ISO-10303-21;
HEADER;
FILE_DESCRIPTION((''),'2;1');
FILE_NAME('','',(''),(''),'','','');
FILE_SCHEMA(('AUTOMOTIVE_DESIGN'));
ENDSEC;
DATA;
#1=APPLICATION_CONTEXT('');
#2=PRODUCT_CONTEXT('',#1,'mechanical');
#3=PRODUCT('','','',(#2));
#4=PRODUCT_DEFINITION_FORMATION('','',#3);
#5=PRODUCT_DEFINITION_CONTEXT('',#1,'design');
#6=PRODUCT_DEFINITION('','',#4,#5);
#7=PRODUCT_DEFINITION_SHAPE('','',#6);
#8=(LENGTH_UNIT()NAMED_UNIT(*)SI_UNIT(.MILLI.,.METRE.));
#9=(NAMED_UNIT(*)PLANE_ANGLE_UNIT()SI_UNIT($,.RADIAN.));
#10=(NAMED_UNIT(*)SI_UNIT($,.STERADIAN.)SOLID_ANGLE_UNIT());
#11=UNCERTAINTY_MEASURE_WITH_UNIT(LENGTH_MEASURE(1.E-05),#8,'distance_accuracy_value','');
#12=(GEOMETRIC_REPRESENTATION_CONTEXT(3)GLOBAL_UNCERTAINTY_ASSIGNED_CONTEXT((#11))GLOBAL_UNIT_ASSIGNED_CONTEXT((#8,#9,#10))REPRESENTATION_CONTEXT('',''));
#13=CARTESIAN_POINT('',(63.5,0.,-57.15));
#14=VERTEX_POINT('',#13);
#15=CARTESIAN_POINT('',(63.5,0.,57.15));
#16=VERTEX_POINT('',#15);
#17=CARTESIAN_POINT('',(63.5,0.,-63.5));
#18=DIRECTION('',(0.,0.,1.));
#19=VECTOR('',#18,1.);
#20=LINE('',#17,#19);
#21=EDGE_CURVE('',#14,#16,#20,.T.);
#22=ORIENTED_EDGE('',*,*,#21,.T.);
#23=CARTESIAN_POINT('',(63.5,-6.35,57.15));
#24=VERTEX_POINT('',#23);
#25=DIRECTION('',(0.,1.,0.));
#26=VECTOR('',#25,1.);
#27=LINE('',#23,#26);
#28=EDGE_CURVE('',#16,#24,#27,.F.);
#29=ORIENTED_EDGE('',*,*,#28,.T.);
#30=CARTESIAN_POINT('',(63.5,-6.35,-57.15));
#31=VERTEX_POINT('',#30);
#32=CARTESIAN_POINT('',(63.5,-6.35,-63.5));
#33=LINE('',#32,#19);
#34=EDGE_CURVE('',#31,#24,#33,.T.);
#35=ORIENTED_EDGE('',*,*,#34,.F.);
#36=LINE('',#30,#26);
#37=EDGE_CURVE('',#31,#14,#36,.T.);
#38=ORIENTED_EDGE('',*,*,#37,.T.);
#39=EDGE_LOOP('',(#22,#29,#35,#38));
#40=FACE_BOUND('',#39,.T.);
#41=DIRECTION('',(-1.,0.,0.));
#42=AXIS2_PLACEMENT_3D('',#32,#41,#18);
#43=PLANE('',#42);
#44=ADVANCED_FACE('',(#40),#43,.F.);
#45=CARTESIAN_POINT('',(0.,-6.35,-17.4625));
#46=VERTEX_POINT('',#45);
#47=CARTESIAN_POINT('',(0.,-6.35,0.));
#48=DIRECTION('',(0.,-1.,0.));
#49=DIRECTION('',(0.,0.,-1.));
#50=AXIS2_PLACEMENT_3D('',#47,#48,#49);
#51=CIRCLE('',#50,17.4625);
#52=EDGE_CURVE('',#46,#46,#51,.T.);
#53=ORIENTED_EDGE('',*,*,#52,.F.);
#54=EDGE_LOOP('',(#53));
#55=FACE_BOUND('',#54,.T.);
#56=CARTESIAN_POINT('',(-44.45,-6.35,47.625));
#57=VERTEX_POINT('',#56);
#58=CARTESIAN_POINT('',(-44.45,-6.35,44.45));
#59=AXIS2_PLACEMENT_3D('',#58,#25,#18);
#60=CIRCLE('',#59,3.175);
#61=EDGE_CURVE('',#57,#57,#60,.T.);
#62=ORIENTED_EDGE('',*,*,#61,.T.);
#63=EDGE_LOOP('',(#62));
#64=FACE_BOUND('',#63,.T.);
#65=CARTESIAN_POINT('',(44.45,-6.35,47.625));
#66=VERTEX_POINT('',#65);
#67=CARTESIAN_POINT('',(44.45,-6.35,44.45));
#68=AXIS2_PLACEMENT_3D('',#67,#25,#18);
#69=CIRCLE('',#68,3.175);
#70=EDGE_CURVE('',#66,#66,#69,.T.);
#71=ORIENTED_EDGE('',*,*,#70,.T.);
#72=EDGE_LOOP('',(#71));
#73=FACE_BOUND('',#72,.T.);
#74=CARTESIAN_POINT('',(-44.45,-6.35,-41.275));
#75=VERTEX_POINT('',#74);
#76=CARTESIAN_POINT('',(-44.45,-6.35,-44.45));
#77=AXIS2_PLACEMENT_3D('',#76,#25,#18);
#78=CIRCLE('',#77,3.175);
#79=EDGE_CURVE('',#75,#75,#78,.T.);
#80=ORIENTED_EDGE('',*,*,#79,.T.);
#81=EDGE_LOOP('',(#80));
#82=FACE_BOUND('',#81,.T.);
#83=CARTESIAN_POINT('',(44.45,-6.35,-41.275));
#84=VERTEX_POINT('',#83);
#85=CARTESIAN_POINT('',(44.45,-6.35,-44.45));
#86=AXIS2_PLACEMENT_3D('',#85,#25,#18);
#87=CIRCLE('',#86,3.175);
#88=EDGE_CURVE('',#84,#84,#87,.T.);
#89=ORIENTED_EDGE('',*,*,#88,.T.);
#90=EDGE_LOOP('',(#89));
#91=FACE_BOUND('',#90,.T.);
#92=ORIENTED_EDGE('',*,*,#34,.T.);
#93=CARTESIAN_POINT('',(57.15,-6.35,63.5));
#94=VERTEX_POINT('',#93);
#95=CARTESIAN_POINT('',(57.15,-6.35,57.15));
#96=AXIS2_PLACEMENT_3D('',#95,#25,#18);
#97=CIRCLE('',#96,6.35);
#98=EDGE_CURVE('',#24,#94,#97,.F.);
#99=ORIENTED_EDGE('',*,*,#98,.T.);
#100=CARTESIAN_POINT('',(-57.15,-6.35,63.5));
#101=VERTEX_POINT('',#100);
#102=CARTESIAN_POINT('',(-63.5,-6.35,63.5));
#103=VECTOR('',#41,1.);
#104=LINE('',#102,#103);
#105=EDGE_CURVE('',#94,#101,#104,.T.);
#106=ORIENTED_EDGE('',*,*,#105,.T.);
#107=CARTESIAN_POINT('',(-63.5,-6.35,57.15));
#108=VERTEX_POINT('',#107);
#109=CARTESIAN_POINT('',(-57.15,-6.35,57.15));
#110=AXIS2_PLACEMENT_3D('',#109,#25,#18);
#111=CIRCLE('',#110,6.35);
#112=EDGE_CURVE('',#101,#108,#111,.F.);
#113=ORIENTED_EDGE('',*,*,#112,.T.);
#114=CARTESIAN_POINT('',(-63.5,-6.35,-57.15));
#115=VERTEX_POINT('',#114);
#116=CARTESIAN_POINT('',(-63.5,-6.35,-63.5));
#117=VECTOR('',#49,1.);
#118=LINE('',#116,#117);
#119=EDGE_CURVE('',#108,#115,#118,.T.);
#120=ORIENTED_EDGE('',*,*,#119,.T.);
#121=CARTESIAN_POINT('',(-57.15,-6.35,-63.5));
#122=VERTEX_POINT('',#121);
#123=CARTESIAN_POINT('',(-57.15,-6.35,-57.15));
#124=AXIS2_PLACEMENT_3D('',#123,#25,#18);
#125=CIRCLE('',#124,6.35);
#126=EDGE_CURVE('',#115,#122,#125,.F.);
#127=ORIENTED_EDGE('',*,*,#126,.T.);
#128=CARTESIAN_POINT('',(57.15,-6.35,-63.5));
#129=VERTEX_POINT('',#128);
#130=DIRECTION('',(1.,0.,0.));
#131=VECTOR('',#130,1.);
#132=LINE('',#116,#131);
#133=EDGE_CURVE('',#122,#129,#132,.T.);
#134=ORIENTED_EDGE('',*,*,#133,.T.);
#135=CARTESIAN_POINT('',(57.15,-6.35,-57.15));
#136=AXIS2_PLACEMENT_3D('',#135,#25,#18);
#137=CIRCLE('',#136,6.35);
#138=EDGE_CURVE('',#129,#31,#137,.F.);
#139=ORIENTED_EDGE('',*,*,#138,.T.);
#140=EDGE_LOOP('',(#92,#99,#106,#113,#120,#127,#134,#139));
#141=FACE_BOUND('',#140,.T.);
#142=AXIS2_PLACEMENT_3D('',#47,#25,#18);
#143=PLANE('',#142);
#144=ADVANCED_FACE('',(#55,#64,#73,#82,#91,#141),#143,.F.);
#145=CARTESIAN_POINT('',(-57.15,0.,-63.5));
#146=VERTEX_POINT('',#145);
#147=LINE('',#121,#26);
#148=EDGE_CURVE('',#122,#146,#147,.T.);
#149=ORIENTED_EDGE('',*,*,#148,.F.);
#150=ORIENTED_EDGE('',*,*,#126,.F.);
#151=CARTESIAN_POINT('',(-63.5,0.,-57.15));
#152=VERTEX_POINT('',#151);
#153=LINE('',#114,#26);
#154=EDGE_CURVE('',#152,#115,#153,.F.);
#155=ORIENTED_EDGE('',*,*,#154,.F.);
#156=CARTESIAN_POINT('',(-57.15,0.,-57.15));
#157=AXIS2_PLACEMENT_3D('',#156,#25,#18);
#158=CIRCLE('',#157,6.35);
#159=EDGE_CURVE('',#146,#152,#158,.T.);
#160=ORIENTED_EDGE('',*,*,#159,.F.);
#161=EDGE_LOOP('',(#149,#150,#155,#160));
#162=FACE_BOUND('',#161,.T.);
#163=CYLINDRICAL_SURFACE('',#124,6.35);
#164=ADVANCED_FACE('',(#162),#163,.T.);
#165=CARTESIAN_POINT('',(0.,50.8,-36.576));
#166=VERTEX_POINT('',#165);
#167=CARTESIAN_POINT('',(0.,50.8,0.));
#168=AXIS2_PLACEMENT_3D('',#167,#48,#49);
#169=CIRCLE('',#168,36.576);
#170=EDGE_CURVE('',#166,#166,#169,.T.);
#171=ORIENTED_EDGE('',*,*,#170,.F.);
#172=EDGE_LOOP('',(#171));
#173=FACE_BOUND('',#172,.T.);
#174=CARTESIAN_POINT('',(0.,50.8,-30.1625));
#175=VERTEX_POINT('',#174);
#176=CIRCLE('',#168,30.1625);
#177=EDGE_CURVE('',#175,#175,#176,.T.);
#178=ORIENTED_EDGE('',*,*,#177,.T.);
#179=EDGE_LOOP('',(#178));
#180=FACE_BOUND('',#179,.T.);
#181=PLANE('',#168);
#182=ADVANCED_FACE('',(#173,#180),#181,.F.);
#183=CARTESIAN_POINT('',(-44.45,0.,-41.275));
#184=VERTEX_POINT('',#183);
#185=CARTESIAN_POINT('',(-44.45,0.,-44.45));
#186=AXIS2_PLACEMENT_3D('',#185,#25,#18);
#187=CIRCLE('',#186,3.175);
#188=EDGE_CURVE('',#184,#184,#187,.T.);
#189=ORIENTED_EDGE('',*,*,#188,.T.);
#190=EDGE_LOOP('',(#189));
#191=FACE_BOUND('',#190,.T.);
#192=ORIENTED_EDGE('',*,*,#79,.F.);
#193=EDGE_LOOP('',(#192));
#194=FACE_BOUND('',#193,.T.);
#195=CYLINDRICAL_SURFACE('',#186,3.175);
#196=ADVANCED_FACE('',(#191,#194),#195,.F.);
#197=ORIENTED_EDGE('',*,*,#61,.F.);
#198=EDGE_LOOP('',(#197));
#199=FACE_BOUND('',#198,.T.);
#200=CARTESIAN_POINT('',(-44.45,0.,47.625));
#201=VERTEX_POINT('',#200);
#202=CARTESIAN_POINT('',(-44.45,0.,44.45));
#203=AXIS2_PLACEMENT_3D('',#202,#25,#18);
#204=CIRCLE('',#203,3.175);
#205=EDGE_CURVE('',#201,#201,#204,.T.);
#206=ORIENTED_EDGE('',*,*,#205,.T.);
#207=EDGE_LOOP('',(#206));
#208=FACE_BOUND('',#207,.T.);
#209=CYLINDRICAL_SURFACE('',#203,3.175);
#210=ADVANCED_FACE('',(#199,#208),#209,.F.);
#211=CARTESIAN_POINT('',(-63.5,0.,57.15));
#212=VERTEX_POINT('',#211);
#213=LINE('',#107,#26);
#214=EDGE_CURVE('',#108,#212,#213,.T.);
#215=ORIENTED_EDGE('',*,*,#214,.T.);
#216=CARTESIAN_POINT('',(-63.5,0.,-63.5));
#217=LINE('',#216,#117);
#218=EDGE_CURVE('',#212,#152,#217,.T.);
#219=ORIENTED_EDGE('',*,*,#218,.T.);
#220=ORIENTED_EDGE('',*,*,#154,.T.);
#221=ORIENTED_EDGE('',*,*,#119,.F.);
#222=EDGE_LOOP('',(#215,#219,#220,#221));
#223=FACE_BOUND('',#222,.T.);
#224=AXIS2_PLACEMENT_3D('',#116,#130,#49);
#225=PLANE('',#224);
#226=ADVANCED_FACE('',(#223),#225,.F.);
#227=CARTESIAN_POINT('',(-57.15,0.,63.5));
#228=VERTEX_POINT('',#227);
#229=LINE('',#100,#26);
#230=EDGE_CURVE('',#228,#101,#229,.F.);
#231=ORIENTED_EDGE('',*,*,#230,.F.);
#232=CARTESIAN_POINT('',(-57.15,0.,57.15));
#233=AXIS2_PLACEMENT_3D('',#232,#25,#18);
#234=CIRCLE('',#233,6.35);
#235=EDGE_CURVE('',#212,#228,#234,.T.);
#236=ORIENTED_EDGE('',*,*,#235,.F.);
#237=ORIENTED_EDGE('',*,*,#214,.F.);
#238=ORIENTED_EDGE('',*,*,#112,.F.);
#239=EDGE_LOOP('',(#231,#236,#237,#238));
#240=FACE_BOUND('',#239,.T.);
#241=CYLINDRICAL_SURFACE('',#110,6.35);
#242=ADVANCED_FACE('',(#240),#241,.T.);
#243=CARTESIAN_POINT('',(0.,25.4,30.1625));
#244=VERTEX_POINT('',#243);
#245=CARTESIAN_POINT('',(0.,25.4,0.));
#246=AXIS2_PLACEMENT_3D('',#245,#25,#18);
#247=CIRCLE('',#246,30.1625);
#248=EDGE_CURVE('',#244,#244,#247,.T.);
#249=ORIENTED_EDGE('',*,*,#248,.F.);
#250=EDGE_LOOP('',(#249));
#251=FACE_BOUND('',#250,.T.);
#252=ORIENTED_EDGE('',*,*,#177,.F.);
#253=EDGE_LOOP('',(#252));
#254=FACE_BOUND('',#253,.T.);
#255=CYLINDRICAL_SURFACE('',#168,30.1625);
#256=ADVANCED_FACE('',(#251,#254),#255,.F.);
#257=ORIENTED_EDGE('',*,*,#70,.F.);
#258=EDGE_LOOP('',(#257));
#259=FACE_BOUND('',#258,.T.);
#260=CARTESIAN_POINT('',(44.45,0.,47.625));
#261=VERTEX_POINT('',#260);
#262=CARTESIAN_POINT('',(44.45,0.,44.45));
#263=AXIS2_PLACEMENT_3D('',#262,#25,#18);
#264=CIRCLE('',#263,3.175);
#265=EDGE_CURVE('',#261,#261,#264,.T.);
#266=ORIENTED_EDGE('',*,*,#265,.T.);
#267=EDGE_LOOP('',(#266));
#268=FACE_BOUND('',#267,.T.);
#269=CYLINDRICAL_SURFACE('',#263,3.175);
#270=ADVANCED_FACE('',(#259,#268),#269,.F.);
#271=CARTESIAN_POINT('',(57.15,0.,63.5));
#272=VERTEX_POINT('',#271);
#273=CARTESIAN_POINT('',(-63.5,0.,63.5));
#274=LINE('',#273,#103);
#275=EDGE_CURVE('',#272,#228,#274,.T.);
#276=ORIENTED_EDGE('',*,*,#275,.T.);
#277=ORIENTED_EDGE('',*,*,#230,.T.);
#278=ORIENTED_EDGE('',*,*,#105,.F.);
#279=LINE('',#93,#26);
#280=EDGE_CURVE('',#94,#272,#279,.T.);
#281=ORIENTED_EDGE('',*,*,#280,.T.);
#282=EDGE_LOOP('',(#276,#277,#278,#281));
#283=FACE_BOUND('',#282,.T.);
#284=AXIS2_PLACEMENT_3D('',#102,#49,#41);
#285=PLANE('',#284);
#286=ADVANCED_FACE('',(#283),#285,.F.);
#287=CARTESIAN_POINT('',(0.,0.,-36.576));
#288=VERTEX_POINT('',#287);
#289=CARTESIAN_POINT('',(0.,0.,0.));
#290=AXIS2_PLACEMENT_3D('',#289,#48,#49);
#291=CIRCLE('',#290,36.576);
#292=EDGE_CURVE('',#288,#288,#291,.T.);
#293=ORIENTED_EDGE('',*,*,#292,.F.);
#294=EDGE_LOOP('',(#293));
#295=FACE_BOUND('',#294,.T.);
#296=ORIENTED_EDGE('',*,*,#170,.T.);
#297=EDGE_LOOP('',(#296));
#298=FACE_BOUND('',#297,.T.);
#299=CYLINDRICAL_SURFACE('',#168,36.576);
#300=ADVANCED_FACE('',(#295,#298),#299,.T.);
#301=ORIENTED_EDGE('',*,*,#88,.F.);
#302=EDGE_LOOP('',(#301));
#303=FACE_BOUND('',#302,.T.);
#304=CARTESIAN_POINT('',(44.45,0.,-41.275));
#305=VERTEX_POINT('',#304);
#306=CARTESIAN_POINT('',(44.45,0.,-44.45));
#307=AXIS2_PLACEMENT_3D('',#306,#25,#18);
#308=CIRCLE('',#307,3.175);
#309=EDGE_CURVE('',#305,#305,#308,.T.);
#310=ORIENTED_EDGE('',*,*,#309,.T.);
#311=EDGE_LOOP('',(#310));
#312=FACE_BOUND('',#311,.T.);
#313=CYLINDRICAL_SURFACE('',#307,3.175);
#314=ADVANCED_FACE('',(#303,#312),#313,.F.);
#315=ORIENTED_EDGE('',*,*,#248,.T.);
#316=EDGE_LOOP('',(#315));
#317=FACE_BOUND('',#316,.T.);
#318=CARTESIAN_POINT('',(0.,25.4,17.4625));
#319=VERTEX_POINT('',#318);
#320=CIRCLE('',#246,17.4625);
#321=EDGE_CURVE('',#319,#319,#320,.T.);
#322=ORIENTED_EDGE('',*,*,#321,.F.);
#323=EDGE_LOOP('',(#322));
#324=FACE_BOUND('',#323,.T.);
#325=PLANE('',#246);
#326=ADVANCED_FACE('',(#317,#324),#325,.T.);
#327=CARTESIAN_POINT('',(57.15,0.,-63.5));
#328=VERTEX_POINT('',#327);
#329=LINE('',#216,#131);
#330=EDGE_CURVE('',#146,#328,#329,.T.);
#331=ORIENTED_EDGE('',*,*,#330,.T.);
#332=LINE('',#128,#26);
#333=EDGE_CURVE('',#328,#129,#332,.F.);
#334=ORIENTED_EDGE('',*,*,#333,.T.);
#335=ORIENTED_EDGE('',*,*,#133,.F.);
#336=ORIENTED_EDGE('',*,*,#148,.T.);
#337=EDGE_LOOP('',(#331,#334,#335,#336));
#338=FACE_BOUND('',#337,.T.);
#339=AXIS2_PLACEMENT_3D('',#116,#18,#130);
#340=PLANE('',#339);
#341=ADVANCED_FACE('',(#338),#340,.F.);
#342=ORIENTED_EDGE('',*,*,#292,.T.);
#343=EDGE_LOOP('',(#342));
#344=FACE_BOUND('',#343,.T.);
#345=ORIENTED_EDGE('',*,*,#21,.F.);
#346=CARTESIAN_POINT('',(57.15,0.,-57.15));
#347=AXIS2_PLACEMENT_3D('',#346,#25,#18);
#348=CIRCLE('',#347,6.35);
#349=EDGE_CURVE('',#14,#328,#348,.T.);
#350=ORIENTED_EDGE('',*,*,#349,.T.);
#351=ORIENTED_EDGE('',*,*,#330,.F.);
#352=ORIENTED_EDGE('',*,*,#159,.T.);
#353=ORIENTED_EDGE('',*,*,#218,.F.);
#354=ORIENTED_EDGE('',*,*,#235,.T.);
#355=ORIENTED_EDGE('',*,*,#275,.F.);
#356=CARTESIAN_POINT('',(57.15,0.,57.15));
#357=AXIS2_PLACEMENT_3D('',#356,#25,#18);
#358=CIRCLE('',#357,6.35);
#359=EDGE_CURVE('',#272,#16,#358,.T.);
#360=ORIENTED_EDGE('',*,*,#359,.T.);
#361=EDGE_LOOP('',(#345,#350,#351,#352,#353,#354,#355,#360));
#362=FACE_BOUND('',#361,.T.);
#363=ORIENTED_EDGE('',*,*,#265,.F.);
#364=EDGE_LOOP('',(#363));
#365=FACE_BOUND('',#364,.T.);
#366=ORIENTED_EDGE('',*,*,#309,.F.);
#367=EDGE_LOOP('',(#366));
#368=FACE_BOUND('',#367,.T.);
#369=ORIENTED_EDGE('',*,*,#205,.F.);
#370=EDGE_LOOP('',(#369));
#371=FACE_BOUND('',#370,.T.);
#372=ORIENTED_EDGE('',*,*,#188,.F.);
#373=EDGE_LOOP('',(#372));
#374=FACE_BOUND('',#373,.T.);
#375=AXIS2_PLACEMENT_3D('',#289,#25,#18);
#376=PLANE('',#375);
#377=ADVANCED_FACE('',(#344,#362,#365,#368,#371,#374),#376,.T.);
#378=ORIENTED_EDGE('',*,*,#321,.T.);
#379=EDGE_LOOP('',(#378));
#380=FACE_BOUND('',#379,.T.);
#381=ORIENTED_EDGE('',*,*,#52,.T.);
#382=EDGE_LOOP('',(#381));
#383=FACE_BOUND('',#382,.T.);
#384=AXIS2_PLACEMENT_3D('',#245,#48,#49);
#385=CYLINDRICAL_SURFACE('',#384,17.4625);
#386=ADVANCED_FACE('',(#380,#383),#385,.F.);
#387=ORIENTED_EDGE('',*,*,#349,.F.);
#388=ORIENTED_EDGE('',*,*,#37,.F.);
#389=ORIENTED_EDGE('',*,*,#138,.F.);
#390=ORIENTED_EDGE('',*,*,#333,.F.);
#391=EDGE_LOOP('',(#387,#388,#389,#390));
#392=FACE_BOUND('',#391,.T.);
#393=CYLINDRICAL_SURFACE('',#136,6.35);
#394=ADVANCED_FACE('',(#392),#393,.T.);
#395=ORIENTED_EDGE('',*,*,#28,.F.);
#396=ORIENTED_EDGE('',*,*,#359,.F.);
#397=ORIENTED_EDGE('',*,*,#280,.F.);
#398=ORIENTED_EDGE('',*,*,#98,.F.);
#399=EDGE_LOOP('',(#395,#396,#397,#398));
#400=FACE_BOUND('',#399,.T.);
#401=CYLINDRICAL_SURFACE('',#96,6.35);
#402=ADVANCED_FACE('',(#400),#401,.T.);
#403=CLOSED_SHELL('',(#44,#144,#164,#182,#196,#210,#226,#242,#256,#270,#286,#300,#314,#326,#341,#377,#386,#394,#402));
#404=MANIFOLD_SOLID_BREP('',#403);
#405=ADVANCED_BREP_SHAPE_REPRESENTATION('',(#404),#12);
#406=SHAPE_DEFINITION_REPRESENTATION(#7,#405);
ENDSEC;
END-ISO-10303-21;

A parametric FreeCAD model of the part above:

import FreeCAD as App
import Part
import Sketcher

V = App.Vector
Q = App.Units.Quantity


def edges_at(feature, points):
    """Names of the edges that pass closest to the given points."""
    edges = feature.Shape.Edges
    near = lambda p: min(range(len(edges)), key=lambda i: edges[i].distToShape(Part.Vertex(*p))[0])
    return sorted({f"Edge{near(p) + 1}" for p in points})

doc = App.newDocument("Part")
body = doc.addObject("PartDesign::Body", "Body")

# Sketch on XZ plane
sketch1 = doc.addObject("Sketcher::SketchObject", "Sketch")
body.addObject(sketch1)
sketch1.AttachmentSupport = (doc.XZ_Plane, [""])
sketch1.MapMode = "FlatFace"
sketch1.addGeometry([
    Part.Circle(V(0, 0, 0), V(0, 0, 1), 30.1625),
    Part.Circle(V(0, 0, 0), V(0, 0, 1), 17.4625),
], False)
sketch1.addConstraint([
    Sketcher.Constraint("Coincident", 0, 3, -1, 1),
    Sketcher.Constraint("Coincident", 1, 3, -1, 1),
    Sketcher.Constraint("Diameter", 0, Q("2.375 in")),
    Sketcher.Constraint("Diameter", 1, Q("1.375 in")),
])
pad1 = doc.addObject("PartDesign::Pad", "Pad")
body.addObject(pad1)
pad1.Profile = sketch1
pad1.Length = Q("1 in")
pad1.Reversed = True

# Sketch on XZ plane
sketch2 = doc.addObject("Sketcher::SketchObject", "Sketch001")
body.addObject(sketch2)
sketch2.AttachmentSupport = (doc.XZ_Plane, [""])
sketch2.MapMode = "FlatFace"
sketch2.addGeometry([
    Part.Circle(V(0, 0, 0), V(0, 0, 1), 36.576),
    Part.Circle(V(0, 0, 0), V(0, 0, 1), 30.1625),
], False)
sketch2.addConstraint([
    Sketcher.Constraint("Coincident", 0, 3, -1, 1),
    Sketcher.Constraint("Coincident", 1, 3, -1, 1),
    Sketcher.Constraint("Diameter", 0, Q("2.88 in")),
    Sketcher.Constraint("Diameter", 1, Q("2.375 in")),
])
pad2 = doc.addObject("PartDesign::Pad", "Pad001")
body.addObject(pad2)
pad2.Profile = sketch2
pad2.Length = Q("2 in")
pad2.Reversed = True

# Sketch on XZ plane
sketch3 = doc.addObject("Sketcher::SketchObject", "Sketch002")
body.addObject(sketch3)
sketch3.AttachmentSupport = (doc.XZ_Plane, [""])
sketch3.MapMode = "FlatFace"
sketch3.AttachmentOffset = App.Placement(V(0, 0, 0.25 * 25.4), App.Rotation())
sketch3.addGeometry([
    Part.LineSegment(V(-63.5, 63.5, 0), V(-63.5, -63.5, 0)),  # 0
    Part.LineSegment(V(-63.5, -63.5, 0), V(63.5, -63.5, 0)),  # 1
    Part.LineSegment(V(63.5, -63.5, 0), V(63.5, 63.5, 0)),  # 2
    Part.LineSegment(V(63.5, 63.5, 0), V(-63.5, 63.5, 0)),  # 3
    Part.Circle(V(0, 0, 0), V(0, 0, 1), 17.4625),  # 4
], False)
sketch3.addConstraint([
    Sketcher.Constraint("Coincident", 0, 2, 1, 1),
    Sketcher.Constraint("Coincident", 1, 2, 2, 1),
    Sketcher.Constraint("Coincident", 2, 2, 3, 1),
    Sketcher.Constraint("Coincident", 3, 2, 0, 1),
    Sketcher.Constraint("Vertical", 0),
    Sketcher.Constraint("Horizontal", 1),
    Sketcher.Constraint("Vertical", 2),
    Sketcher.Constraint("Horizontal", 3),
    Sketcher.Constraint("Coincident", 4, 3, -1, 1),
    Sketcher.Constraint("Symmetric", 0, 2, 2, 2, -1, 1),
    Sketcher.Constraint("Equal", 3, 0),
    Sketcher.Constraint("DistanceX", 1, 1, 1, 2, Q("5 in")),
    Sketcher.Constraint("Diameter", 4, Q("1.375 in")),
])
pad3 = doc.addObject("PartDesign::Pad", "Pad002")
body.addObject(pad3)
pad3.Profile = sketch3
pad3.Length = Q("0.25 in")
pad3.Reversed = True
doc.recompute()

fillet = doc.addObject("PartDesign::Fillet", "Fillet")
body.addObject(fillet)
fillet.Base = (pad3, edges_at(pad3, [
    (63.5, -3.175, -63.5),
    (63.5, -3.175, 63.5),
    (-63.5, -3.175, 63.5),
    (-63.5, -3.175, -63.5),
]))
fillet.Radius = Q("0.25 in")

# Sketch on XZ plane
sketch4 = doc.addObject("Sketcher::SketchObject", "Sketch003")
body.addObject(sketch4)
sketch4.AttachmentSupport = (doc.XZ_Plane, [""])
sketch4.MapMode = "FlatFace"
sketch4.addGeometry(Part.Circle(V(-44.45, 44.45, 0), V(0, 0, 1), 3.175), False)
sketch4.addConstraint([
    Sketcher.Constraint("Diameter", 0, Q("0.25 in")),
    Sketcher.Constraint("DistanceX", 0, 3, -1, 1, Q("1.75 in")),
    Sketcher.Constraint("DistanceY", -1, 1, 0, 3, Q("1.75 in")),
])
doc.recompute()
hole = doc.addObject("PartDesign::Hole", "Hole")
body.addObject(hole)
hole.Profile = sketch4
hole.ThreadType = "None"
hole.Diameter = Q("0.25 in")
hole.DepthType = "ThroughAll"
hole.Reversed = True
doc.recompute()

polarpattern = doc.addObject("PartDesign::PolarPattern", "PolarPattern")
body.addObject(polarpattern)
polarpattern.Originals = [hole]
polarpattern.Axis = (doc.Y_Axis, [""])
polarpattern.Angle = 360
polarpattern.Occurrences = 4
body.Tip = polarpattern

doc.recompute()
